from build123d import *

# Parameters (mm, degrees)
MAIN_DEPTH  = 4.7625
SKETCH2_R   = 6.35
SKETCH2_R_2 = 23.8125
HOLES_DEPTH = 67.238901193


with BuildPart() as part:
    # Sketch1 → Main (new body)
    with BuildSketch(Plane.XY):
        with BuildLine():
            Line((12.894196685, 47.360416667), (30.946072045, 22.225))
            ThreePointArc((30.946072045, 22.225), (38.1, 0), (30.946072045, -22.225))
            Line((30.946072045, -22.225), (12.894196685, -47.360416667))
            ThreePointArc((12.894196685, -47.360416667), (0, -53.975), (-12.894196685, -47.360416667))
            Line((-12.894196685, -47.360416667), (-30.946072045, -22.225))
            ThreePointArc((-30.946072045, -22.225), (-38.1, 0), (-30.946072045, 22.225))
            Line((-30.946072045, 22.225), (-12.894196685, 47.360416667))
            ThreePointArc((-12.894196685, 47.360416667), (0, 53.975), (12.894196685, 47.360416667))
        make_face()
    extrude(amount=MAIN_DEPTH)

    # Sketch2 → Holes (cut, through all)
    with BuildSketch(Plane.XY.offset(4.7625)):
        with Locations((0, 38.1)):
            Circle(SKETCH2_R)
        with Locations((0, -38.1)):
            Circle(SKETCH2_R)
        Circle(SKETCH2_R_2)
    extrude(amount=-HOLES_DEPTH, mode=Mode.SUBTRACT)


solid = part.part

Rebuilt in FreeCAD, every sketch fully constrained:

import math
import FreeCAD as App
import Part
import Sketcher
Q = App.Units.Quantity

doc = App.newDocument("Part")
body = doc.addObject("PartDesign::Body", "Body")

# Sketch on XY plane
sketch1 = body.newObject("Sketcher::SketchObject", "Sketch")
sketch1.AttachmentSupport = (doc.getObject("XY_Plane"), [""])
sketch1.MapMode = "FlatFace"
sketch1.addGeometry([
    Part.LineSegment(App.Vector(31, 22, 0), App.Vector(13, 47, 0)),  # 0
    Part.ArcOfCircle(Part.Circle(App.Vector(0, 38, 0), App.Vector(0, 0, 1), 16), math.radians(36), math.radians(144)),  # 1
    Part.LineSegment(App.Vector(-13, 47, 0), App.Vector(-31, 22, 0)),  # 2
    Part.ArcOfCircle(Part.Circle(App.Vector(0, 0, 0), App.Vector(0, 0, 1), 38), math.radians(144), math.radians(216)),  # 3
    Part.LineSegment(App.Vector(-31, -22, 0), App.Vector(-13, -47, 0)),  # 4
    Part.ArcOfCircle(Part.Circle(App.Vector(0, -38, 0), App.Vector(0, 0, 1), 16), math.radians(-144), math.radians(-36)),  # 5
    Part.LineSegment(App.Vector(13, -47, 0), App.Vector(31, -22, 0)),  # 6
    Part.ArcOfCircle(Part.Circle(App.Vector(0, 0, 0), App.Vector(0, 0, 1), 38), math.radians(-36), math.radians(36)),  # 7
], False)
sketch1.addConstraint([
    Sketcher.Constraint("Tangent", 0, 2, 1, 1),
    Sketcher.Constraint("Tangent", 1, 2, 2, 1),
    Sketcher.Constraint("Tangent", 2, 2, 3, 1),
    Sketcher.Constraint("Tangent", 3, 2, 4, 1),
    Sketcher.Constraint("Tangent", 4, 2, 5, 1),
    Sketcher.Constraint("Tangent", 5, 2, 6, 1),
    Sketcher.Constraint("Tangent", 6, 2, 7, 1),
    Sketcher.Constraint("Tangent", 7, 2, 0, 1),
    Sketcher.Constraint("Coincident", 3, 3, -1, 1),
    Sketcher.Constraint("Coincident", 7, 3, -1, 1),
    Sketcher.Constraint("Equal", 1, 5),
    Sketcher.Constraint("Equal", 3, 7),
    Sketcher.Constraint("Symmetric", 1, 3, 5, 3, -1, 1),
    Sketcher.Constraint("PointOnObject", 1, 3, -2),
    Sketcher.Constraint("Radius", 3, Q("1.5 in")),
    Sketcher.Constraint("Radius", 1, Q("0.625 in")),
    Sketcher.Constraint("DistanceY", 5, 3, 1, 3, Q("3 in")),
])
pad1 = body.newObject("PartDesign::Pad", "Pad")
pad1.Profile = sketch1
pad1.Length = Q("0.1875 in")

# Sketch on XY plane
sketch2 = body.newObject("Sketcher::SketchObject", "Sketch001")
sketch2.AttachmentSupport = (doc.getObject("XY_Plane"), [""])
sketch2.MapMode = "FlatFace"
sketch2.AttachmentOffset = App.Placement(App.Vector(0, 0, 0.1875 * 25.4), App.Rotation())
sketch2.addGeometry([
    Part.Circle(App.Vector(0, 38, 0), App.Vector(0, 0, 1), 6),
    Part.Circle(App.Vector(0, -38, 0), App.Vector(0, 0, 1), 6),
    Part.Circle(App.Vector(0, 0, 0), App.Vector(0, 0, 1), 24),
], False)
sketch2.addConstraint([
    Sketcher.Constraint("Coincident", 2, 3, -1, 1),
    Sketcher.Constraint("Equal", 0, 1),
    Sketcher.Constraint("Symmetric", 0, 3, 1, 3, -1, 1),
    Sketcher.Constraint("PointOnObject", 0, 3, -2),
    Sketcher.Constraint("Diameter", 0, Q("0.5 in")),
    Sketcher.Constraint("Diameter", 2, Q("1.875 in")),
    Sketcher.Constraint("DistanceY", 1, 3, 0, 3, Q("3 in")),
])
pocket1 = body.newObject("PartDesign::Pocket", "Pocket")
pocket1.Profile = sketch2
pocket1.Type = "ThroughAll"

doc.recompute()
